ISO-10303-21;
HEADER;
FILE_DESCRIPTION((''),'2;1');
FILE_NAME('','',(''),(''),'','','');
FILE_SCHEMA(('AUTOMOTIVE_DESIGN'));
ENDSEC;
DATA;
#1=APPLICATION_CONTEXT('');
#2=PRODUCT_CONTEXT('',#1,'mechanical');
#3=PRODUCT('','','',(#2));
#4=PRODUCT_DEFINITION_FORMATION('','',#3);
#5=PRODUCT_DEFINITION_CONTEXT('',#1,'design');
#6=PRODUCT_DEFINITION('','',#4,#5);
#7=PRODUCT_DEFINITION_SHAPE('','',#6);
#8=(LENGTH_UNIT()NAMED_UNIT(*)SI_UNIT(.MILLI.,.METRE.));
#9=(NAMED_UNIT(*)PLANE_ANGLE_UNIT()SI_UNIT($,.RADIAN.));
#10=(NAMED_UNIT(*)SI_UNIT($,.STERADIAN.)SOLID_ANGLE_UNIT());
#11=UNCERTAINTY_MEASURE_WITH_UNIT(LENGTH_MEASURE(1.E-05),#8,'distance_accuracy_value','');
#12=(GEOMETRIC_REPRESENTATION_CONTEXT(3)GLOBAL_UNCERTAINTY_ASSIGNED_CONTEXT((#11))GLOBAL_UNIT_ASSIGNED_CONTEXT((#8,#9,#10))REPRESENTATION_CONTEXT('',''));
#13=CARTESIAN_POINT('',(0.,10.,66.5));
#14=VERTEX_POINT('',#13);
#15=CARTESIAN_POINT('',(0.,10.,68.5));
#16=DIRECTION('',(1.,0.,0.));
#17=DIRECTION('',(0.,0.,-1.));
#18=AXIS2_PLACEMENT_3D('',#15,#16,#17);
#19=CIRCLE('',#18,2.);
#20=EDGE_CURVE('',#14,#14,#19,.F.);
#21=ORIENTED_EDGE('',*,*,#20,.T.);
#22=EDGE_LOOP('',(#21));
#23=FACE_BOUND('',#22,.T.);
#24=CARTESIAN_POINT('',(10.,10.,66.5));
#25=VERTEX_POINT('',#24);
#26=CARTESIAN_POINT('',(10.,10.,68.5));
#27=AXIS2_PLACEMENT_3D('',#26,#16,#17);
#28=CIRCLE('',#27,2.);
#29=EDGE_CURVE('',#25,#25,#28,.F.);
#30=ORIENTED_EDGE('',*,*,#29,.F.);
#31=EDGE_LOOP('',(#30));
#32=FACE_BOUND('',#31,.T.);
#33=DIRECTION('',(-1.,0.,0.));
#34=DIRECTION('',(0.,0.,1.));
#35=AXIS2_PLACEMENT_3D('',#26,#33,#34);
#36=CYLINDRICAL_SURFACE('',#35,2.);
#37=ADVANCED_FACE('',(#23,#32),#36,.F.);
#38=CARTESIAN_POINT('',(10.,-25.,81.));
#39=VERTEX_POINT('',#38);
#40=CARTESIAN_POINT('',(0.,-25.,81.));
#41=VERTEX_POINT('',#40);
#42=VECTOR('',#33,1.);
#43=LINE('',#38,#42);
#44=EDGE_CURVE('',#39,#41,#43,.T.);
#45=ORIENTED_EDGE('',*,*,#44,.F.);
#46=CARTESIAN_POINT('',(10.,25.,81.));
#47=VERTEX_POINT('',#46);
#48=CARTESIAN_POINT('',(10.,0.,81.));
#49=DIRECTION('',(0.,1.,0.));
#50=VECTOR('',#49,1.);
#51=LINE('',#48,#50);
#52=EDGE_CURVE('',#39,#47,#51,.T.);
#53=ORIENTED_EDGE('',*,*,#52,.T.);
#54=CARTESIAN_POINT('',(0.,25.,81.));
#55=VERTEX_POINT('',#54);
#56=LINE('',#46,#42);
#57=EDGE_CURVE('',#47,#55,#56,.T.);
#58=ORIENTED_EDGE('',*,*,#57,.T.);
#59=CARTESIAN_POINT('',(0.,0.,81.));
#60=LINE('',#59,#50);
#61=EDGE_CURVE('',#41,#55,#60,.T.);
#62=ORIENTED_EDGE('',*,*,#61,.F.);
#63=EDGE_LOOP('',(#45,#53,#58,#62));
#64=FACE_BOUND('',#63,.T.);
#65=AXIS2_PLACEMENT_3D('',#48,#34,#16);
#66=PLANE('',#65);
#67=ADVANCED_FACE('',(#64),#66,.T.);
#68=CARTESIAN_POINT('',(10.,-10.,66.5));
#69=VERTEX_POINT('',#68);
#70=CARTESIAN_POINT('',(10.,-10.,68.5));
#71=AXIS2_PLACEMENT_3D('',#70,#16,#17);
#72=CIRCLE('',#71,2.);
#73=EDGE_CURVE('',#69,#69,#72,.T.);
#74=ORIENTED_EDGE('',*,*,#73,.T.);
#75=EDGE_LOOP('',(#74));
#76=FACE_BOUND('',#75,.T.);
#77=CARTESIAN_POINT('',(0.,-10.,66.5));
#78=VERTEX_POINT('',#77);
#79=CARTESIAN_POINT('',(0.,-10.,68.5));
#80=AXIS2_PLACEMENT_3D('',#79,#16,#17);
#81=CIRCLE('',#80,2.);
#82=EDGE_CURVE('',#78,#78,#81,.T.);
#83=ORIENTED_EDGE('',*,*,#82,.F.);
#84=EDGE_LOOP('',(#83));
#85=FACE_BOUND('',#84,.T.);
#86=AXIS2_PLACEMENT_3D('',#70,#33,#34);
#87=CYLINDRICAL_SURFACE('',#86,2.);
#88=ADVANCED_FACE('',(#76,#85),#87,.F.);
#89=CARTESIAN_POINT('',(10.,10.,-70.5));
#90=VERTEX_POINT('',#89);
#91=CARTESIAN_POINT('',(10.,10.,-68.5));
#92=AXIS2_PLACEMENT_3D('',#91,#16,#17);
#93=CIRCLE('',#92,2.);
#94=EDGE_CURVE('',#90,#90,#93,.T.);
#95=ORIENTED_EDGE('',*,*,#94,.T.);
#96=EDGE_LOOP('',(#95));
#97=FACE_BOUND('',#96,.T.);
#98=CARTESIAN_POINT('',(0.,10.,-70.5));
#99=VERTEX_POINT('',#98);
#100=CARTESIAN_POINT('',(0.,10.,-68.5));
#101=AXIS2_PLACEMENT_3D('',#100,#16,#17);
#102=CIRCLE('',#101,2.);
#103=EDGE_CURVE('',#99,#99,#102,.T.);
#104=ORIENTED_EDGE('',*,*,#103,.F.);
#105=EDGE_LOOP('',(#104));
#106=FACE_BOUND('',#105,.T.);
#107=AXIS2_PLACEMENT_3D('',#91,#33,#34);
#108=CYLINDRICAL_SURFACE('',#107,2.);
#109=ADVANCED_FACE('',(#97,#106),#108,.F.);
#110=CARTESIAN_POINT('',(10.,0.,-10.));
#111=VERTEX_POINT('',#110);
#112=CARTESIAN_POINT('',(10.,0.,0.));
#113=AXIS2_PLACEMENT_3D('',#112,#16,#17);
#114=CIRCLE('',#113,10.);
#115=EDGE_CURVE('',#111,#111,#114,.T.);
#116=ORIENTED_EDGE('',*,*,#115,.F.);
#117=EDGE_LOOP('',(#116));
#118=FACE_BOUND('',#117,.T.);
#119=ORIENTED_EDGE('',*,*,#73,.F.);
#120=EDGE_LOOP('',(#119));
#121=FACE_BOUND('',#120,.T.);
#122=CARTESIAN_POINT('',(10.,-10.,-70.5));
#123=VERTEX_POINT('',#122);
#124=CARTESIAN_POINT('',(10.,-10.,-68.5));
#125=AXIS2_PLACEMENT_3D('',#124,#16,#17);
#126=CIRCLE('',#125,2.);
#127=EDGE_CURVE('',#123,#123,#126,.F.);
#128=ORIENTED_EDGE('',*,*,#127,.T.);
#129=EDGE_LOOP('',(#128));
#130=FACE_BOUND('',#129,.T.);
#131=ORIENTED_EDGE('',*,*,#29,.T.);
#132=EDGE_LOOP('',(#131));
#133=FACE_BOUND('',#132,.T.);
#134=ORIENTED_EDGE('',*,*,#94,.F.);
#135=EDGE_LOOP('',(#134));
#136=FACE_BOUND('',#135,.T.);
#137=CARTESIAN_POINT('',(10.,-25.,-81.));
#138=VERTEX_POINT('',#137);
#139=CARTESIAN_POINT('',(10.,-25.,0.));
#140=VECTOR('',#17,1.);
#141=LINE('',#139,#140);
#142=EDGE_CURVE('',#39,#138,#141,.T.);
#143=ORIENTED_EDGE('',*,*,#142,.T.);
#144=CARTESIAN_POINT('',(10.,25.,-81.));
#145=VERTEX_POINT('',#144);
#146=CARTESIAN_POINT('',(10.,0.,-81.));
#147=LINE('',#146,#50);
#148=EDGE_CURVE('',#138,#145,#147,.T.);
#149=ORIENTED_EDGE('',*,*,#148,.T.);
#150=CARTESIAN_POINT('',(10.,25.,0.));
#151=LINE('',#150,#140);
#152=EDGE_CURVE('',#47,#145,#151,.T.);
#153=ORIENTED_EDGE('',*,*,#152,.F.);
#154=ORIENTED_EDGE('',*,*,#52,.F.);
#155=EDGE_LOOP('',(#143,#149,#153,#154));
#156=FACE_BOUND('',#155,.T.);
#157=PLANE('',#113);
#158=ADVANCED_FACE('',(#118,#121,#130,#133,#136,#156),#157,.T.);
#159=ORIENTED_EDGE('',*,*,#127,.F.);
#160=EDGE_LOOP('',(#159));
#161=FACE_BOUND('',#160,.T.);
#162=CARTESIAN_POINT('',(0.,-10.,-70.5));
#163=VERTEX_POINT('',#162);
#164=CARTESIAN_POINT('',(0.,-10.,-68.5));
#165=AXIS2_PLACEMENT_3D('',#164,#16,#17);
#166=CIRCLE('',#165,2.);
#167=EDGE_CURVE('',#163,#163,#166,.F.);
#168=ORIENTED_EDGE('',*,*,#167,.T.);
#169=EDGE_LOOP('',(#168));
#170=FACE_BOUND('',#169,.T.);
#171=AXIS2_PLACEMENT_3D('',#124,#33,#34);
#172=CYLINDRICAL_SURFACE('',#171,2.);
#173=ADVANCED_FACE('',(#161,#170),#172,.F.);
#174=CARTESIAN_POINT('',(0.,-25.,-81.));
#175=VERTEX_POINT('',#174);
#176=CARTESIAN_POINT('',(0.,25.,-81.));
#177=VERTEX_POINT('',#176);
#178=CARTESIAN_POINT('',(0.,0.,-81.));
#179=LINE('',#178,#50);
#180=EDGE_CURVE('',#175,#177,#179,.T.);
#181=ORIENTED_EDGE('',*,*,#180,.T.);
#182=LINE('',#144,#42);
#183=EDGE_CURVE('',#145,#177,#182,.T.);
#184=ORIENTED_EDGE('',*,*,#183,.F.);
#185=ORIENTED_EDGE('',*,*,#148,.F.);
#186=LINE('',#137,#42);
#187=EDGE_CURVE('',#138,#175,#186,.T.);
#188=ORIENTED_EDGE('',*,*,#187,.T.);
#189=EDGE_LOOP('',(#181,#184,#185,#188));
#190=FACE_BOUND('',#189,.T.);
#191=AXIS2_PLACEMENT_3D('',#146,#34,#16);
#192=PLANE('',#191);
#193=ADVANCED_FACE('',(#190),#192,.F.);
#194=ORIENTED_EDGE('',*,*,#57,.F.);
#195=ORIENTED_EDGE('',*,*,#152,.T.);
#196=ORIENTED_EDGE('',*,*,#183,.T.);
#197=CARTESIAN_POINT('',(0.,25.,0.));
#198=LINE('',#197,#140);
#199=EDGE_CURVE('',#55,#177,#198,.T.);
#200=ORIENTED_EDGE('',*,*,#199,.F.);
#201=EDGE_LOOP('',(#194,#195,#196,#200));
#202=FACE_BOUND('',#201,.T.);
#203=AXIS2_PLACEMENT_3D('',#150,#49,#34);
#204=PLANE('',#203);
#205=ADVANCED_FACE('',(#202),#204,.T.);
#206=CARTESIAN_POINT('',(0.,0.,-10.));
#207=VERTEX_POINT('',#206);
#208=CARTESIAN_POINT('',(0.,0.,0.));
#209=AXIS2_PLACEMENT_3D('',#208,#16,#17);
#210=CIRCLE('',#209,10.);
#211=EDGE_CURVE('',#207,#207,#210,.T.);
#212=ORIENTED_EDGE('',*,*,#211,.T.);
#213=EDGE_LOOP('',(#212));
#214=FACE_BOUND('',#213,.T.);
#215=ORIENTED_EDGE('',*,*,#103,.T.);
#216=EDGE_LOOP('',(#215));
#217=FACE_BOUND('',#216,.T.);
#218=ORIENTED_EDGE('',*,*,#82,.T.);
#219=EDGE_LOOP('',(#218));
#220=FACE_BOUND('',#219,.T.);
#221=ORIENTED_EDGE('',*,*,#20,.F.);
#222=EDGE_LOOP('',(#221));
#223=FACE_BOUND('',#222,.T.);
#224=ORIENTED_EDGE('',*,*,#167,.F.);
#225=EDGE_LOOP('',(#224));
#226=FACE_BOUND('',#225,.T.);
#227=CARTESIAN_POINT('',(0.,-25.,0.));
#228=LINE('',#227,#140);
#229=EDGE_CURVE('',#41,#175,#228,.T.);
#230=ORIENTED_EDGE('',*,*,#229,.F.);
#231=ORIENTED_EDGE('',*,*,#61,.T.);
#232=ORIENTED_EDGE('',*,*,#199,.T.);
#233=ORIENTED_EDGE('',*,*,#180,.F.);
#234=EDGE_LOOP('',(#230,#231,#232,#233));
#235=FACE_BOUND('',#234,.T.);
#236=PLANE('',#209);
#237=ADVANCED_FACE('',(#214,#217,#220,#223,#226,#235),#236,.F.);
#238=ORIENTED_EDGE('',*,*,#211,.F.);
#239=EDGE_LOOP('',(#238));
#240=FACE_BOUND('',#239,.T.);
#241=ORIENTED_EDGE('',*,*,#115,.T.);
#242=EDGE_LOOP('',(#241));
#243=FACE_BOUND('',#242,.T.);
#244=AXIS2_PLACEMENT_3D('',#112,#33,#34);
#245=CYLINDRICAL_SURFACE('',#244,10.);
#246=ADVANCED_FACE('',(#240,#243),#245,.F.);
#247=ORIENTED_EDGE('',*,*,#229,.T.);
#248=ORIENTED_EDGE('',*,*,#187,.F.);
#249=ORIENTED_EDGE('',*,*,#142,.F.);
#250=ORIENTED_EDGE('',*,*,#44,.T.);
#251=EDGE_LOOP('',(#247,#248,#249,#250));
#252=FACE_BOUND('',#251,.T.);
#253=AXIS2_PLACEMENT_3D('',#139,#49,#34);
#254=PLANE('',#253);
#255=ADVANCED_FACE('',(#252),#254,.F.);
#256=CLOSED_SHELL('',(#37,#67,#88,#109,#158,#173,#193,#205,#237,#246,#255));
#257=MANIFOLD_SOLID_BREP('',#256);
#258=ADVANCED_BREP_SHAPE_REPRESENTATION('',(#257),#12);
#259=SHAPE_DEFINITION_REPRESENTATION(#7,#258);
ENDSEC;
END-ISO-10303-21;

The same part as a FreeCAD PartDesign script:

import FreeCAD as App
import Part
import Sketcher
Q = App.Units.Quantity

doc = App.newDocument("Part")
body = doc.addObject("PartDesign::Body", "Body")

# Sketch on YZ plane
sketch1 = doc.addObject("Sketcher::SketchObject", "Sketch")
body.addObject(sketch1)
sketch1.AttachmentSupport = (doc.YZ_Plane, [""])
sketch1.MapMode = "FlatFace"
sketch1.addGeometry([
    Part.LineSegment(App.Vector(25, 81, 0), App.Vector(-25, 81, 0)),  # 0
    Part.LineSegment(App.Vector(-25, 81, 0), App.Vector(-25, -81, 0)),  # 1
    Part.LineSegment(App.Vector(-25, -81, 0), App.Vector(25, -81, 0)),  # 2
    Part.LineSegment(App.Vector(25, -81, 0), App.Vector(25, 81, 0)),  # 3
    Part.Circle(App.Vector(-10, 68.5, 0), App.Vector(0, 0, 1), 2),  # 4
    Part.Circle(App.Vector(-10, -68.5, 0), App.Vector(0, 0, 1), 2),  # 5
    Part.Circle(App.Vector(10, 68.5, 0), App.Vector(0, 0, 1), 2),  # 6
    Part.Circle(App.Vector(0, 0, 0), App.Vector(0, 0, 1), 10),  # 7
    Part.Circle(App.Vector(10, -68.5, 0), App.Vector(0, 0, 1), 2),  # 8
], False)
sketch1.addConstraint([
    Sketcher.Constraint("Coincident", 0, 2, 1, 1),
    Sketcher.Constraint("Coincident", 1, 2, 2, 1),
    Sketcher.Constraint("Coincident", 2, 2, 3, 1),
    Sketcher.Constraint("Coincident", 3, 2, 0, 1),
    Sketcher.Constraint("Horizontal", 0),
    Sketcher.Constraint("Vertical", 1),
    Sketcher.Constraint("Horizontal", 2),
    Sketcher.Constraint("Vertical", 3),
    Sketcher.Constraint("Coincident", 7, 3, -1, 1),
    Sketcher.Constraint("Equal", 4, 5),
    Sketcher.Constraint("Equal", 5, 6),
    Sketcher.Constraint("Equal", 6, 8),
    Sketcher.Constraint("Symmetric", 5, 3, 6, 3, -1, 1),
    Sketcher.Constraint("Symmetric", 4, 3, 8, 3, -1, 1),
    Sketcher.Constraint("Symmetric", 0, 2, 2, 2, -1, 1),
    Sketcher.Constraint("Symmetric", 4, 3, 6, 3, -2),
    Sketcher.Constraint("Diameter", 4, Q("4 mm")),
    Sketcher.Constraint("Diameter", 7, Q("20 mm")),
    Sketcher.Constraint("DistanceX", 0, 2, 0, 1, Q("50 mm")),
    Sketcher.Constraint("DistanceY", 1, 2, 1, 1, Q("162 mm")),
    Sketcher.Constraint("DistanceX", 4, 3, -1, 1, Q("10 mm")),
    Sketcher.Constraint("DistanceY", 5, 3, 4, 3, Q("137 mm")),
])
pad1 = doc.addObject("PartDesign::Pad", "Pad")
body.addObject(pad1)
pad1.Profile = sketch1
pad1.Length = 10

doc.recompute()
